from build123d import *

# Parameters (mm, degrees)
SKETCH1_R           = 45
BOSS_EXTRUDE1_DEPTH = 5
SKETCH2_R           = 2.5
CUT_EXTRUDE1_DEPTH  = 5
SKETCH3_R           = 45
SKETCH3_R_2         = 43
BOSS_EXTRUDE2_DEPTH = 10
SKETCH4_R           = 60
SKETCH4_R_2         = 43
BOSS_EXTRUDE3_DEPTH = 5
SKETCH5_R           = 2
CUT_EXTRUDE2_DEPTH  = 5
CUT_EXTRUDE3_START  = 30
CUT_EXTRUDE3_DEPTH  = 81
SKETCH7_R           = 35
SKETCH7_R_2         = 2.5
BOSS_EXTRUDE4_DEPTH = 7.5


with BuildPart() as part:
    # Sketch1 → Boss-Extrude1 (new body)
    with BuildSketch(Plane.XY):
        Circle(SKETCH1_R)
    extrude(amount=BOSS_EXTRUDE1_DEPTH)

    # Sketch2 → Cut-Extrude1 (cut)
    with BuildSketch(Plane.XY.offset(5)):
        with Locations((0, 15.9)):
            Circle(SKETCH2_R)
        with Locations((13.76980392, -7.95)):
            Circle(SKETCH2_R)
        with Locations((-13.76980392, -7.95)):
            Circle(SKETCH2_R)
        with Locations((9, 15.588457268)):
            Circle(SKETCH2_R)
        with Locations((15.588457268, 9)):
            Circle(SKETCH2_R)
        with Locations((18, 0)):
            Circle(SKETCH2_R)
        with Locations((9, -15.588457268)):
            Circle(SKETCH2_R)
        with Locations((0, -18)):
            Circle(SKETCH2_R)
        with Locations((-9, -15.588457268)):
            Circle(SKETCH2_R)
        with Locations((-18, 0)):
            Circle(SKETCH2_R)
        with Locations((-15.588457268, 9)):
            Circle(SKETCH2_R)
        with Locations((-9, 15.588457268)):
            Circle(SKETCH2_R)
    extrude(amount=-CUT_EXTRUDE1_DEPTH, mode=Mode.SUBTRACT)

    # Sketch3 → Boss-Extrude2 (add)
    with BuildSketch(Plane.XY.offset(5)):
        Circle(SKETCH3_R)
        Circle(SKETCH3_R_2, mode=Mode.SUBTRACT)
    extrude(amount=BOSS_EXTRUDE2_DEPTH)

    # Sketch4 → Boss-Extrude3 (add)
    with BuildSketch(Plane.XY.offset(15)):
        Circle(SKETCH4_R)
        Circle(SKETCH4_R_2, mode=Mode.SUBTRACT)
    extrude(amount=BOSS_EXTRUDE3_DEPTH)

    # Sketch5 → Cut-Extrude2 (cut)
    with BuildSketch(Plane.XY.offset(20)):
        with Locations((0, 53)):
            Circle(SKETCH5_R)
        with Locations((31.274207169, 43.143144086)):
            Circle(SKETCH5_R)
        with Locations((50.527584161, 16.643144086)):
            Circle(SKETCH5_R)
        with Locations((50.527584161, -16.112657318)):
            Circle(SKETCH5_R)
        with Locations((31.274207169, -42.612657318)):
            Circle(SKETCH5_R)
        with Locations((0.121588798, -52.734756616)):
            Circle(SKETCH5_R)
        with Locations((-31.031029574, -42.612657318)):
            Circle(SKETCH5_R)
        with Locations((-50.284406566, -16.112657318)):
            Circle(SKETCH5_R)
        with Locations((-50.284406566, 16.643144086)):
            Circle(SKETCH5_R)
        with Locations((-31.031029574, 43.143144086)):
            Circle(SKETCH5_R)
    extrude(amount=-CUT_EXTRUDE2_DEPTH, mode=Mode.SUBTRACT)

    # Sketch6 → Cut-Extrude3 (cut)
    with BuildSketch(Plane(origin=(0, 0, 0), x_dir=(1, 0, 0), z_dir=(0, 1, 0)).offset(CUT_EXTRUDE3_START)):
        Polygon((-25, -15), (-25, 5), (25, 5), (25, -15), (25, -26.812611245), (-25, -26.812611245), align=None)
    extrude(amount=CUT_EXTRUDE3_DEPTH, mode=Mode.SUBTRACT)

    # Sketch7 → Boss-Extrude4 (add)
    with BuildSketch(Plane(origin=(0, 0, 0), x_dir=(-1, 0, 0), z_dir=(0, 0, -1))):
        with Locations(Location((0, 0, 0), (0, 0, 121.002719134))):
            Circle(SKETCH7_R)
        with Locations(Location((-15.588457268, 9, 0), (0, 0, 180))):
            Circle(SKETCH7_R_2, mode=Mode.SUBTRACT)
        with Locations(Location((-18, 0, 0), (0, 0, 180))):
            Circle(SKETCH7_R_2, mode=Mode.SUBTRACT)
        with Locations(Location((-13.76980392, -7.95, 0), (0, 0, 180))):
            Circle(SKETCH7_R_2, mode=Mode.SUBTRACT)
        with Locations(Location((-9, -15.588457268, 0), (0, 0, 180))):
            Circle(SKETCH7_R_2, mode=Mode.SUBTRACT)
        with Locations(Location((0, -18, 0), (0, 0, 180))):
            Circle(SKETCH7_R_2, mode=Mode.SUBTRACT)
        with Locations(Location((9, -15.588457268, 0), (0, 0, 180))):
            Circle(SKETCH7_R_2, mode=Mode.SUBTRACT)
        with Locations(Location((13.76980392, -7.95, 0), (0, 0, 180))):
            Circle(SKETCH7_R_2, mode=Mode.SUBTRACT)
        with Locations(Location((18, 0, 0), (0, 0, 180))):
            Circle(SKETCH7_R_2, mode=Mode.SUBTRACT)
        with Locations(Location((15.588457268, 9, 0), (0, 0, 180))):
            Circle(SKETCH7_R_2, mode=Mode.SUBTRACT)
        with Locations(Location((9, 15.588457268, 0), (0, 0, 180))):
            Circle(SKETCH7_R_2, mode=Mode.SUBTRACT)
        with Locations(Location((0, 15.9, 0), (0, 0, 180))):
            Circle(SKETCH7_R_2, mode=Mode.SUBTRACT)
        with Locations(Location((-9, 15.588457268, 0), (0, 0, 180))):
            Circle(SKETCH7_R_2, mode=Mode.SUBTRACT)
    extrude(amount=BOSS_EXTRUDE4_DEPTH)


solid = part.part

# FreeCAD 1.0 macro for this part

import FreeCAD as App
import Part
import Sketcher
from FreeCAD import Vector
Q = App.Units.Quantity


def add_polygon(sketch, points):
    """Adds a closed chain of lines whose ends are joined by coincident constraints."""
    first, n = sketch.GeometryCount, len(points)
    for a, b in zip(points, points[1:] + points[:1]):
        sketch.addGeometry(Part.LineSegment(App.Vector(*a, 0), App.Vector(*b, 0)), False)
    for i in range(n):
        sketch.addConstraint(Sketcher.Constraint("Coincident", first + i, 2, first + (i + 1) % n, 1))

doc = App.newDocument("Part")
body = doc.addObject("PartDesign::Body", "Body")

# Sketch on XY plane
sketch1 = body.newObject("Sketcher::SketchObject", "Sketch")
sketch1.AttachmentSupport = (doc.getObject("XY_Plane"), [""])
sketch1.MapMode = "FlatFace"
sketch1.addGeometry(Part.Circle(Vector(0, 0, 0), Vector(0, 0, 1), 45), False)
sketch1.addConstraint(Sketcher.Constraint("Coincident", 0, 3, -1, 1))
sketch1.addConstraint(Sketcher.Constraint("Diameter", 0, Q("90 mm")))
pad1 = body.newObject("PartDesign::Pad", "Pad")
pad1.Profile = sketch1
pad1.Length = 5

# Sketch on XY plane
sketch2 = body.newObject("Sketcher::SketchObject", "Sketch001")
sketch2.AttachmentSupport = (doc.getObject("XY_Plane"), [""])
sketch2.MapMode = "FlatFace"
sketch2.AttachmentOffset = App.Placement(Vector(0, 0, 5), App.Rotation())
sketch2.addGeometry(Part.Circle(Vector(0, 15.9, 0), Vector(0, 0, 1), 2.5), False)
sketch2.addGeometry(Part.Circle(Vector(13.8, -8, 0), Vector(0, 0, 1), 2.5), False)
sketch2.addGeometry(Part.Circle(Vector(-13.8, -8, 0), Vector(0, 0, 1), 2.5), False)
sketch2.addGeometry(Part.Circle(Vector(9, 15.6, 0), Vector(0, 0, 1), 2.5), False)
sketch2.addGeometry(Part.Circle(Vector(15.6, 9, 0), Vector(0, 0, 1), 2.5), False)
sketch2.addGeometry(Part.Circle(Vector(18, 0, 0), Vector(0, 0, 1), 2.5), False)
sketch2.addGeometry(Part.Circle(Vector(9, -15.6, 0), Vector(0, 0, 1), 2.5), False)
sketch2.addGeometry(Part.Circle(Vector(0, -18, 0), Vector(0, 0, 1), 2.5), False)
sketch2.addGeometry(Part.Circle(Vector(-9, -15.6, 0), Vector(0, 0, 1), 2.5), False)
sketch2.addGeometry(Part.Circle(Vector(-18, 0, 0), Vector(0, 0, 1), 2.5), False)
sketch2.addGeometry(Part.Circle(Vector(-15.6, 9, 0), Vector(0, 0, 1), 2.5), False)
sketch2.addGeometry(Part.Circle(Vector(-9, 15.6, 0), Vector(0, 0, 1), 2.5), False)
sketch2.addConstraint(Sketcher.Constraint("Equal", 0, 1))
sketch2.addConstraint(Sketcher.Constraint("Equal", 1, 2))
sketch2.addConstraint(Sketcher.Constraint("Equal", 2, 3))
sketch2.addConstraint(Sketcher.Constraint("Equal", 3, 4))
sketch2.addConstraint(Sketcher.Constraint("Equal", 4, 5))
sketch2.addConstraint(Sketcher.Constraint("Equal", 5, 6))
sketch2.addConstraint(Sketcher.Constraint("Equal", 6, 7))
sketch2.addConstraint(Sketcher.Constraint("Equal", 7, 8))
sketch2.addConstraint(Sketcher.Constraint("Equal", 8, 9))
sketch2.addConstraint(Sketcher.Constraint("Equal", 9, 10))
sketch2.addConstraint(Sketcher.Constraint("Equal", 10, 11))
sketch2.addConstraint(Sketcher.Constraint("Symmetric", 3, 3, 8, 3, -1, 1))
sketch2.addConstraint(Sketcher.Constraint("Symmetric", 5, 3, 9, 3, -1, 1))
sketch2.addConstraint(Sketcher.Constraint("Symmetric", 6, 3, 11, 3, -1, 1))
sketch2.addConstraint(Sketcher.Constraint("Symmetric", 1, 3, 2, 3, -2))
sketch2.addConstraint(Sketcher.Constraint("Symmetric", 6, 3, 8, 3, -2))
sketch2.addConstraint(Sketcher.Constraint("Symmetric", 4, 3, 10, 3, -2))
sketch2.addConstraint(Sketcher.Constraint("PointOnObject", 0, 3, -2))
sketch2.addConstraint(Sketcher.Constraint("PointOnObject", 5, 3, -1))
sketch2.addConstraint(Sketcher.Constraint("PointOnObject", 7, 3, -2))
sketch2.addConstraint(Sketcher.Constraint("Diameter", 0, Q("5 mm")))
sketch2.addConstraint(Sketcher.Constraint("DistanceX", -1, 1, 3, 3, Q("9 mm")))
sketch2.addConstraint(Sketcher.Constraint("DistanceY", -1, 1, 4, 3, Q("9 mm")))
sketch2.addConstraint(Sketcher.Constraint("DistanceX", -1, 1, 5, 3, Q("18 mm")))
sketch2.addConstraint(Sketcher.Constraint("DistanceY", 7, 3, -1, 1, Q("18 mm")))
sketch2.addConstraint(Sketcher.Constraint("DistanceY", -1, 1, 0, 3, Q("15.9 mm")))
sketch2.addConstraint(Sketcher.Constraint("DistanceY", 1, 3, -1, 1, Q("7.95 mm")))
sketch2.addConstraint(Sketcher.Constraint("DistanceX", 2, 3, 4, 3, Q("29.358261 mm")))
sketch2.addConstraint(Sketcher.Constraint("DistanceX", -1, 1, 1, 3, Q("13.769804 mm")))
sketch2.addConstraint(Sketcher.Constraint("DistanceY", -1, 1, 3, 3, Q("15.588457 mm")))
pocket1 = body.newObject("PartDesign::Pocket", "Pocket")
pocket1.Profile = sketch2
pocket1.Length = 5

# Sketch on XY plane
sketch3 = body.newObject("Sketcher::SketchObject", "Sketch002")
sketch3.AttachmentSupport = (doc.getObject("XY_Plane"), [""])
sketch3.MapMode = "FlatFace"
sketch3.AttachmentOffset = App.Placement(Vector(0, 0, 5), App.Rotation())
sketch3.addGeometry(Part.Circle(Vector(0, 0, 0), Vector(0, 0, 1), 45), False)
sketch3.addGeometry(Part.Circle(Vector(0, 0, 0), Vector(0, 0, 1), 43), False)
sketch3.addConstraint(Sketcher.Constraint("Coincident", 0, 3, -1, 1))
sketch3.addConstraint(Sketcher.Constraint("Coincident", 1, 3, -1, 1))
sketch3.addConstraint(Sketcher.Constraint("Diameter", 0, Q("90 mm")))
sketch3.addConstraint(Sketcher.Constraint("Diameter", 1, Q("86 mm")))
pad2 = body.newObject("PartDesign::Pad", "Pad001")
pad2.Profile = sketch3
pad2.Length = 10

# Sketch on XY plane
sketch4 = body.newObject("Sketcher::SketchObject", "Sketch003")
sketch4.AttachmentSupport = (doc.getObject("XY_Plane"), [""])
sketch4.MapMode = "FlatFace"
sketch4.AttachmentOffset = App.Placement(Vector(0, 0, 15), App.Rotation())
sketch4.addGeometry(Part.Circle(Vector(0, 0, 0), Vector(0, 0, 1), 60), False)
sketch4.addGeometry(Part.Circle(Vector(0, 0, 0), Vector(0, 0, 1), 43), False)
sketch4.addConstraint(Sketcher.Constraint("Coincident", 0, 3, -1, 1))
sketch4.addConstraint(Sketcher.Constraint("Coincident", 1, 3, -1, 1))
sketch4.addConstraint(Sketcher.Constraint("Diameter", 0, Q("120 mm")))
sketch4.addConstraint(Sketcher.Constraint("Diameter", 1, Q("86 mm")))
pad3 = body.newObject("PartDesign::Pad", "Pad002")
pad3.Profile = sketch4
pad3.Length = 5

# Sketch on XY plane
sketch5 = body.newObject("Sketcher::SketchObject", "Sketch004")
sketch5.AttachmentSupport = (doc.getObject("XY_Plane"), [""])
sketch5.MapMode = "FlatFace"
sketch5.AttachmentOffset = App.Placement(Vector(0, 0, 20), App.Rotation())
sketch5.addGeometry(Part.Circle(Vector(0, 53, 0), Vector(0, 0, 1), 2), False)
sketch5.addGeometry(Part.Circle(Vector(31.3, 43.1, 0), Vector(0, 0, 1), 2), False)
sketch5.addGeometry(Part.Circle(Vector(50.5, 16.6, 0), Vector(0, 0, 1), 2), False)
sketch5.addGeometry(Part.Circle(Vector(50.5, -16.1, 0), Vector(0, 0, 1), 2), False)
sketch5.addGeometry(Part.Circle(Vector(31.3, -42.6, 0), Vector(0, 0, 1), 2), False)
sketch5.addGeometry(Part.Circle(Vector(0.1, -52.7, 0), Vector(0, 0, 1), 2), False)
sketch5.addGeometry(Part.Circle(Vector(-31, -42.6, 0), Vector(0, 0, 1), 2), False)
sketch5.addGeometry(Part.Circle(Vector(-50.3, -16.1, 0), Vector(0, 0, 1), 2), False)
sketch5.addGeometry(Part.Circle(Vector(-50.3, 16.6, 0), Vector(0, 0, 1), 2), False)
sketch5.addGeometry(Part.Circle(Vector(-31, 43.1, 0), Vector(0, 0, 1), 2), False)
sketch5.addConstraint(Sketcher.Constraint("Equal", 0, 1))
sketch5.addConstraint(Sketcher.Constraint("Equal", 1, 2))
sketch5.addConstraint(Sketcher.Constraint("Equal", 2, 3))
sketch5.addConstraint(Sketcher.Constraint("Equal", 3, 4))
sketch5.addConstraint(Sketcher.Constraint("Equal", 4, 5))
sketch5.addConstraint(Sketcher.Constraint("Equal", 5, 6))
sketch5.addConstraint(Sketcher.Constraint("Equal", 6, 7))
sketch5.addConstraint(Sketcher.Constraint("Equal", 7, 8))
sketch5.addConstraint(Sketcher.Constraint("Equal", 8, 9))
sketch5.addConstraint(Sketcher.Constraint("PointOnObject", 0, 3, -2))
sketch5.addConstraint(Sketcher.Constraint("Horizontal", 4, 3, 6, 3))
sketch5.addConstraint(Sketcher.Constraint("Horizontal", 3, 3, 7, 3))
sketch5.addConstraint(Sketcher.Constraint("Horizontal", 2, 3, 8, 3))
sketch5.addConstraint(Sketcher.Constraint("Horizontal", 1, 3, 9, 3))
sketch5.addConstraint(Sketcher.Constraint("Vertical", 2, 3, 3, 3))
sketch5.addConstraint(Sketcher.Constraint("Vertical", 1, 3, 4, 3))
sketch5.addConstraint(Sketcher.Constraint("Vertical", 7, 3, 8, 3))
sketch5.addConstraint(Sketcher.Constraint("Vertical", 6, 3, 9, 3))
sketch5.addConstraint(Sketcher.Constraint("Diameter", 0, Q("4 mm")))
sketch5.addConstraint(Sketcher.Constraint("DistanceY", -1, 1, 0, 3, Q("53 mm")))
sketch5.addConstraint(Sketcher.Constraint("DistanceY", 2, 3, 1, 3, Q("26.5 mm")))
sketch5.addConstraint(Sketcher.Constraint("DistanceY", 4, 3, 3, 3, Q("26.5 mm")))
sketch5.addConstraint(Sketcher.Constraint("DistanceY", 3, 3, 2, 3, Q("32.755801 mm")))
sketch5.addConstraint(Sketcher.Constraint("DistanceY", 5, 3, 4, 3, Q("10.122099 mm")))
sketch5.addConstraint(Sketcher.Constraint("DistanceX", -1, 1, 5, 3, Q("0.121589 mm")))
sketch5.addConstraint(Sketcher.Constraint("DistanceX", 6, 3, -1, 1, Q("31.03103 mm")))
sketch5.addConstraint(Sketcher.Constraint("DistanceX", 5, 3, 4, 3, Q("31.152618 mm")))
sketch5.addConstraint(Sketcher.Constraint("DistanceX", 7, 3, 3, 3, Q("100.811991 mm")))
sketch5.addConstraint(Sketcher.Constraint("DistanceY", -1, 1, 1, 3, Q("43.143144 mm")))
sketch5.addConstraint(Sketcher.Constraint("DistanceX", -1, 1, 2, 3, Q("50.527584 mm")))
pocket2 = body.newObject("PartDesign::Pocket", "Pocket001")
pocket2.Profile = sketch5
pocket2.Length = 5

# Sketch on XZ plane
sketch6 = body.newObject("Sketcher::SketchObject", "Sketch005")
sketch6.AttachmentSupport = (doc.getObject("XZ_Plane"), [""])
sketch6.MapMode = "FlatFace"
sketch6.AttachmentOffset = App.Placement(Vector(0, 0, -30), App.Rotation())
add_polygon(sketch6, [(-25, -5), (-25, 27), (25, 27), (25, -5)])  # lines 0-3
sketch6.addConstraint(Sketcher.Constraint("Vertical", 0))
sketch6.addConstraint(Sketcher.Constraint("Horizontal", 1))
sketch6.addConstraint(Sketcher.Constraint("Vertical", 2))
sketch6.addConstraint(Sketcher.Constraint("Horizontal", 3))
sketch6.addConstraint(Sketcher.Constraint("DistanceX", 1, 1, 1, 2, Q("50 mm")))
sketch6.addConstraint(Sketcher.Constraint("DistanceX", 0, 2, -1, 1, Q("25 mm")))
sketch6.addConstraint(Sketcher.Constraint("DistanceY", 2, 2, -1, 1, Q("5 mm")))
sketch6.addConstraint(Sketcher.Constraint("DistanceY", 0, 1, 0, 2, Q("31.812611 mm")))
pocket3 = body.newObject("PartDesign::Pocket", "Pocket002")
pocket3.Profile = sketch6
pocket3.Length = 81

# Sketch on XY plane
sketch7 = body.newObject("Sketcher::SketchObject", "Sketch006")
sketch7.AttachmentSupport = (doc.getObject("XY_Plane"), [""])
sketch7.MapMode = "FlatFace"
sketch7.addGeometry(Part.Circle(Vector(0, 0, 0), Vector(0, 0, 1), 35), False)
sketch7.addGeometry(Part.Circle(Vector(-15.6, 9, 0), Vector(0, 0, 1), 2.5), False)
sketch7.addGeometry(Part.Circle(Vector(-18, 0, 0), Vector(0, 0, 1), 2.5), False)
sketch7.addGeometry(Part.Circle(Vector(-13.8, -8, 0), Vector(0, 0, 1), 2.5), False)
sketch7.addGeometry(Part.Circle(Vector(-9, 15.6, 0), Vector(0, 0, 1), 2.5), False)
sketch7.addGeometry(Part.Circle(Vector(0, 15.9, 0), Vector(0, 0, 1), 2.5), False)
sketch7.addGeometry(Part.Circle(Vector(-9, -15.6, 0), Vector(0, 0, 1), 2.5), False)
sketch7.addGeometry(Part.Circle(Vector(0, -18, 0), Vector(0, 0, 1), 2.5), False)
sketch7.addGeometry(Part.Circle(Vector(9, -15.6, 0), Vector(0, 0, 1), 2.5), False)
sketch7.addGeometry(Part.Circle(Vector(9, 15.6, 0), Vector(0, 0, 1), 2.5), False)
sketch7.addGeometry(Part.Circle(Vector(13.8, -8, 0), Vector(0, 0, 1), 2.5), False)
sketch7.addGeometry(Part.Circle(Vector(18, 0, 0), Vector(0, 0, 1), 2.5), False)
sketch7.addGeometry(Part.Circle(Vector(15.6, 9, 0), Vector(0, 0, 1), 2.5), False)
sketch7.addConstraint(Sketcher.Constraint("Coincident", 0, 3, -1, 1))
sketch7.addConstraint(Sketcher.Constraint("Equal", 1, 2))
sketch7.addConstraint(Sketcher.Constraint("Equal", 2, 3))
sketch7.addConstraint(Sketcher.Constraint("Equal", 3, 4))
sketch7.addConstraint(Sketcher.Constraint("Equal", 4, 5))
sketch7.addConstraint(Sketcher.Constraint("Equal", 5, 6))
sketch7.addConstraint(Sketcher.Constraint("Equal", 6, 7))
sketch7.addConstraint(Sketcher.Constraint("Equal", 7, 8))
sketch7.addConstraint(Sketcher.Constraint("Equal", 8, 9))
sketch7.addConstraint(Sketcher.Constraint("Equal", 9, 10))
sketch7.addConstraint(Sketcher.Constraint("Equal", 10, 11))
sketch7.addConstraint(Sketcher.Constraint("Equal", 11, 12))
sketch7.addConstraint(Sketcher.Constraint("Symmetric", 4, 3, 8, 3, -1, 1))
sketch7.addConstraint(Sketcher.Constraint("Symmetric", 6, 3, 9, 3, -1, 1))
sketch7.addConstraint(Sketcher.Constraint("Symmetric", 2, 3, 11, 3, -1, 1))
sketch7.addConstraint(Sketcher.Constraint("Symmetric", 6, 3, 8, 3, -2))
sketch7.addConstraint(Sketcher.Constraint("Symmetric", 3, 3, 10, 3, -2))
sketch7.addConstraint(Sketcher.Constraint("Symmetric", 1, 3, 12, 3, -2))
sketch7.addConstraint(Sketcher.Constraint("PointOnObject", 2, 3, -1))
sketch7.addConstraint(Sketcher.Constraint("PointOnObject", 5, 3, -2))
sketch7.addConstraint(Sketcher.Constraint("PointOnObject", 7, 3, -2))
sketch7.addConstraint(Sketcher.Constraint("Diameter", 0, Q("70 mm")))
sketch7.addConstraint(Sketcher.Constraint("Diameter", 1, Q("5 mm")))
sketch7.addConstraint(Sketcher.Constraint("DistanceY", -1, 1, 1, 3, Q("9 mm")))
sketch7.addConstraint(Sketcher.Constraint("DistanceX", 2, 3, -1, 1, Q("18 mm")))
sketch7.addConstraint(Sketcher.Constraint("DistanceX", 4, 3, -1, 1, Q("9 mm")))
sketch7.addConstraint(Sketcher.Constraint("DistanceY", 7, 3, -1, 1, Q("18 mm")))
sketch7.addConstraint(Sketcher.Constraint("DistanceY", -1, 1, 5, 3, Q("15.9 mm")))
sketch7.addConstraint(Sketcher.Constraint("DistanceY", 3, 3, -1, 1, Q("7.95 mm")))
sketch7.addConstraint(Sketcher.Constraint("DistanceX", 1, 3, -1, 1, Q("15.588457 mm")))
sketch7.addConstraint(Sketcher.Constraint("DistanceX", 3, 3, -1, 1, Q("13.769804 mm")))
sketch7.addConstraint(Sketcher.Constraint("DistanceY", -1, 1, 4, 3, Q("15.588457 mm")))
pad4 = body.newObject("PartDesign::Pad", "Pad003")
pad4.Profile = sketch7
pad4.Length = 7.5
pad4.Reversed = True

doc.recompute()
